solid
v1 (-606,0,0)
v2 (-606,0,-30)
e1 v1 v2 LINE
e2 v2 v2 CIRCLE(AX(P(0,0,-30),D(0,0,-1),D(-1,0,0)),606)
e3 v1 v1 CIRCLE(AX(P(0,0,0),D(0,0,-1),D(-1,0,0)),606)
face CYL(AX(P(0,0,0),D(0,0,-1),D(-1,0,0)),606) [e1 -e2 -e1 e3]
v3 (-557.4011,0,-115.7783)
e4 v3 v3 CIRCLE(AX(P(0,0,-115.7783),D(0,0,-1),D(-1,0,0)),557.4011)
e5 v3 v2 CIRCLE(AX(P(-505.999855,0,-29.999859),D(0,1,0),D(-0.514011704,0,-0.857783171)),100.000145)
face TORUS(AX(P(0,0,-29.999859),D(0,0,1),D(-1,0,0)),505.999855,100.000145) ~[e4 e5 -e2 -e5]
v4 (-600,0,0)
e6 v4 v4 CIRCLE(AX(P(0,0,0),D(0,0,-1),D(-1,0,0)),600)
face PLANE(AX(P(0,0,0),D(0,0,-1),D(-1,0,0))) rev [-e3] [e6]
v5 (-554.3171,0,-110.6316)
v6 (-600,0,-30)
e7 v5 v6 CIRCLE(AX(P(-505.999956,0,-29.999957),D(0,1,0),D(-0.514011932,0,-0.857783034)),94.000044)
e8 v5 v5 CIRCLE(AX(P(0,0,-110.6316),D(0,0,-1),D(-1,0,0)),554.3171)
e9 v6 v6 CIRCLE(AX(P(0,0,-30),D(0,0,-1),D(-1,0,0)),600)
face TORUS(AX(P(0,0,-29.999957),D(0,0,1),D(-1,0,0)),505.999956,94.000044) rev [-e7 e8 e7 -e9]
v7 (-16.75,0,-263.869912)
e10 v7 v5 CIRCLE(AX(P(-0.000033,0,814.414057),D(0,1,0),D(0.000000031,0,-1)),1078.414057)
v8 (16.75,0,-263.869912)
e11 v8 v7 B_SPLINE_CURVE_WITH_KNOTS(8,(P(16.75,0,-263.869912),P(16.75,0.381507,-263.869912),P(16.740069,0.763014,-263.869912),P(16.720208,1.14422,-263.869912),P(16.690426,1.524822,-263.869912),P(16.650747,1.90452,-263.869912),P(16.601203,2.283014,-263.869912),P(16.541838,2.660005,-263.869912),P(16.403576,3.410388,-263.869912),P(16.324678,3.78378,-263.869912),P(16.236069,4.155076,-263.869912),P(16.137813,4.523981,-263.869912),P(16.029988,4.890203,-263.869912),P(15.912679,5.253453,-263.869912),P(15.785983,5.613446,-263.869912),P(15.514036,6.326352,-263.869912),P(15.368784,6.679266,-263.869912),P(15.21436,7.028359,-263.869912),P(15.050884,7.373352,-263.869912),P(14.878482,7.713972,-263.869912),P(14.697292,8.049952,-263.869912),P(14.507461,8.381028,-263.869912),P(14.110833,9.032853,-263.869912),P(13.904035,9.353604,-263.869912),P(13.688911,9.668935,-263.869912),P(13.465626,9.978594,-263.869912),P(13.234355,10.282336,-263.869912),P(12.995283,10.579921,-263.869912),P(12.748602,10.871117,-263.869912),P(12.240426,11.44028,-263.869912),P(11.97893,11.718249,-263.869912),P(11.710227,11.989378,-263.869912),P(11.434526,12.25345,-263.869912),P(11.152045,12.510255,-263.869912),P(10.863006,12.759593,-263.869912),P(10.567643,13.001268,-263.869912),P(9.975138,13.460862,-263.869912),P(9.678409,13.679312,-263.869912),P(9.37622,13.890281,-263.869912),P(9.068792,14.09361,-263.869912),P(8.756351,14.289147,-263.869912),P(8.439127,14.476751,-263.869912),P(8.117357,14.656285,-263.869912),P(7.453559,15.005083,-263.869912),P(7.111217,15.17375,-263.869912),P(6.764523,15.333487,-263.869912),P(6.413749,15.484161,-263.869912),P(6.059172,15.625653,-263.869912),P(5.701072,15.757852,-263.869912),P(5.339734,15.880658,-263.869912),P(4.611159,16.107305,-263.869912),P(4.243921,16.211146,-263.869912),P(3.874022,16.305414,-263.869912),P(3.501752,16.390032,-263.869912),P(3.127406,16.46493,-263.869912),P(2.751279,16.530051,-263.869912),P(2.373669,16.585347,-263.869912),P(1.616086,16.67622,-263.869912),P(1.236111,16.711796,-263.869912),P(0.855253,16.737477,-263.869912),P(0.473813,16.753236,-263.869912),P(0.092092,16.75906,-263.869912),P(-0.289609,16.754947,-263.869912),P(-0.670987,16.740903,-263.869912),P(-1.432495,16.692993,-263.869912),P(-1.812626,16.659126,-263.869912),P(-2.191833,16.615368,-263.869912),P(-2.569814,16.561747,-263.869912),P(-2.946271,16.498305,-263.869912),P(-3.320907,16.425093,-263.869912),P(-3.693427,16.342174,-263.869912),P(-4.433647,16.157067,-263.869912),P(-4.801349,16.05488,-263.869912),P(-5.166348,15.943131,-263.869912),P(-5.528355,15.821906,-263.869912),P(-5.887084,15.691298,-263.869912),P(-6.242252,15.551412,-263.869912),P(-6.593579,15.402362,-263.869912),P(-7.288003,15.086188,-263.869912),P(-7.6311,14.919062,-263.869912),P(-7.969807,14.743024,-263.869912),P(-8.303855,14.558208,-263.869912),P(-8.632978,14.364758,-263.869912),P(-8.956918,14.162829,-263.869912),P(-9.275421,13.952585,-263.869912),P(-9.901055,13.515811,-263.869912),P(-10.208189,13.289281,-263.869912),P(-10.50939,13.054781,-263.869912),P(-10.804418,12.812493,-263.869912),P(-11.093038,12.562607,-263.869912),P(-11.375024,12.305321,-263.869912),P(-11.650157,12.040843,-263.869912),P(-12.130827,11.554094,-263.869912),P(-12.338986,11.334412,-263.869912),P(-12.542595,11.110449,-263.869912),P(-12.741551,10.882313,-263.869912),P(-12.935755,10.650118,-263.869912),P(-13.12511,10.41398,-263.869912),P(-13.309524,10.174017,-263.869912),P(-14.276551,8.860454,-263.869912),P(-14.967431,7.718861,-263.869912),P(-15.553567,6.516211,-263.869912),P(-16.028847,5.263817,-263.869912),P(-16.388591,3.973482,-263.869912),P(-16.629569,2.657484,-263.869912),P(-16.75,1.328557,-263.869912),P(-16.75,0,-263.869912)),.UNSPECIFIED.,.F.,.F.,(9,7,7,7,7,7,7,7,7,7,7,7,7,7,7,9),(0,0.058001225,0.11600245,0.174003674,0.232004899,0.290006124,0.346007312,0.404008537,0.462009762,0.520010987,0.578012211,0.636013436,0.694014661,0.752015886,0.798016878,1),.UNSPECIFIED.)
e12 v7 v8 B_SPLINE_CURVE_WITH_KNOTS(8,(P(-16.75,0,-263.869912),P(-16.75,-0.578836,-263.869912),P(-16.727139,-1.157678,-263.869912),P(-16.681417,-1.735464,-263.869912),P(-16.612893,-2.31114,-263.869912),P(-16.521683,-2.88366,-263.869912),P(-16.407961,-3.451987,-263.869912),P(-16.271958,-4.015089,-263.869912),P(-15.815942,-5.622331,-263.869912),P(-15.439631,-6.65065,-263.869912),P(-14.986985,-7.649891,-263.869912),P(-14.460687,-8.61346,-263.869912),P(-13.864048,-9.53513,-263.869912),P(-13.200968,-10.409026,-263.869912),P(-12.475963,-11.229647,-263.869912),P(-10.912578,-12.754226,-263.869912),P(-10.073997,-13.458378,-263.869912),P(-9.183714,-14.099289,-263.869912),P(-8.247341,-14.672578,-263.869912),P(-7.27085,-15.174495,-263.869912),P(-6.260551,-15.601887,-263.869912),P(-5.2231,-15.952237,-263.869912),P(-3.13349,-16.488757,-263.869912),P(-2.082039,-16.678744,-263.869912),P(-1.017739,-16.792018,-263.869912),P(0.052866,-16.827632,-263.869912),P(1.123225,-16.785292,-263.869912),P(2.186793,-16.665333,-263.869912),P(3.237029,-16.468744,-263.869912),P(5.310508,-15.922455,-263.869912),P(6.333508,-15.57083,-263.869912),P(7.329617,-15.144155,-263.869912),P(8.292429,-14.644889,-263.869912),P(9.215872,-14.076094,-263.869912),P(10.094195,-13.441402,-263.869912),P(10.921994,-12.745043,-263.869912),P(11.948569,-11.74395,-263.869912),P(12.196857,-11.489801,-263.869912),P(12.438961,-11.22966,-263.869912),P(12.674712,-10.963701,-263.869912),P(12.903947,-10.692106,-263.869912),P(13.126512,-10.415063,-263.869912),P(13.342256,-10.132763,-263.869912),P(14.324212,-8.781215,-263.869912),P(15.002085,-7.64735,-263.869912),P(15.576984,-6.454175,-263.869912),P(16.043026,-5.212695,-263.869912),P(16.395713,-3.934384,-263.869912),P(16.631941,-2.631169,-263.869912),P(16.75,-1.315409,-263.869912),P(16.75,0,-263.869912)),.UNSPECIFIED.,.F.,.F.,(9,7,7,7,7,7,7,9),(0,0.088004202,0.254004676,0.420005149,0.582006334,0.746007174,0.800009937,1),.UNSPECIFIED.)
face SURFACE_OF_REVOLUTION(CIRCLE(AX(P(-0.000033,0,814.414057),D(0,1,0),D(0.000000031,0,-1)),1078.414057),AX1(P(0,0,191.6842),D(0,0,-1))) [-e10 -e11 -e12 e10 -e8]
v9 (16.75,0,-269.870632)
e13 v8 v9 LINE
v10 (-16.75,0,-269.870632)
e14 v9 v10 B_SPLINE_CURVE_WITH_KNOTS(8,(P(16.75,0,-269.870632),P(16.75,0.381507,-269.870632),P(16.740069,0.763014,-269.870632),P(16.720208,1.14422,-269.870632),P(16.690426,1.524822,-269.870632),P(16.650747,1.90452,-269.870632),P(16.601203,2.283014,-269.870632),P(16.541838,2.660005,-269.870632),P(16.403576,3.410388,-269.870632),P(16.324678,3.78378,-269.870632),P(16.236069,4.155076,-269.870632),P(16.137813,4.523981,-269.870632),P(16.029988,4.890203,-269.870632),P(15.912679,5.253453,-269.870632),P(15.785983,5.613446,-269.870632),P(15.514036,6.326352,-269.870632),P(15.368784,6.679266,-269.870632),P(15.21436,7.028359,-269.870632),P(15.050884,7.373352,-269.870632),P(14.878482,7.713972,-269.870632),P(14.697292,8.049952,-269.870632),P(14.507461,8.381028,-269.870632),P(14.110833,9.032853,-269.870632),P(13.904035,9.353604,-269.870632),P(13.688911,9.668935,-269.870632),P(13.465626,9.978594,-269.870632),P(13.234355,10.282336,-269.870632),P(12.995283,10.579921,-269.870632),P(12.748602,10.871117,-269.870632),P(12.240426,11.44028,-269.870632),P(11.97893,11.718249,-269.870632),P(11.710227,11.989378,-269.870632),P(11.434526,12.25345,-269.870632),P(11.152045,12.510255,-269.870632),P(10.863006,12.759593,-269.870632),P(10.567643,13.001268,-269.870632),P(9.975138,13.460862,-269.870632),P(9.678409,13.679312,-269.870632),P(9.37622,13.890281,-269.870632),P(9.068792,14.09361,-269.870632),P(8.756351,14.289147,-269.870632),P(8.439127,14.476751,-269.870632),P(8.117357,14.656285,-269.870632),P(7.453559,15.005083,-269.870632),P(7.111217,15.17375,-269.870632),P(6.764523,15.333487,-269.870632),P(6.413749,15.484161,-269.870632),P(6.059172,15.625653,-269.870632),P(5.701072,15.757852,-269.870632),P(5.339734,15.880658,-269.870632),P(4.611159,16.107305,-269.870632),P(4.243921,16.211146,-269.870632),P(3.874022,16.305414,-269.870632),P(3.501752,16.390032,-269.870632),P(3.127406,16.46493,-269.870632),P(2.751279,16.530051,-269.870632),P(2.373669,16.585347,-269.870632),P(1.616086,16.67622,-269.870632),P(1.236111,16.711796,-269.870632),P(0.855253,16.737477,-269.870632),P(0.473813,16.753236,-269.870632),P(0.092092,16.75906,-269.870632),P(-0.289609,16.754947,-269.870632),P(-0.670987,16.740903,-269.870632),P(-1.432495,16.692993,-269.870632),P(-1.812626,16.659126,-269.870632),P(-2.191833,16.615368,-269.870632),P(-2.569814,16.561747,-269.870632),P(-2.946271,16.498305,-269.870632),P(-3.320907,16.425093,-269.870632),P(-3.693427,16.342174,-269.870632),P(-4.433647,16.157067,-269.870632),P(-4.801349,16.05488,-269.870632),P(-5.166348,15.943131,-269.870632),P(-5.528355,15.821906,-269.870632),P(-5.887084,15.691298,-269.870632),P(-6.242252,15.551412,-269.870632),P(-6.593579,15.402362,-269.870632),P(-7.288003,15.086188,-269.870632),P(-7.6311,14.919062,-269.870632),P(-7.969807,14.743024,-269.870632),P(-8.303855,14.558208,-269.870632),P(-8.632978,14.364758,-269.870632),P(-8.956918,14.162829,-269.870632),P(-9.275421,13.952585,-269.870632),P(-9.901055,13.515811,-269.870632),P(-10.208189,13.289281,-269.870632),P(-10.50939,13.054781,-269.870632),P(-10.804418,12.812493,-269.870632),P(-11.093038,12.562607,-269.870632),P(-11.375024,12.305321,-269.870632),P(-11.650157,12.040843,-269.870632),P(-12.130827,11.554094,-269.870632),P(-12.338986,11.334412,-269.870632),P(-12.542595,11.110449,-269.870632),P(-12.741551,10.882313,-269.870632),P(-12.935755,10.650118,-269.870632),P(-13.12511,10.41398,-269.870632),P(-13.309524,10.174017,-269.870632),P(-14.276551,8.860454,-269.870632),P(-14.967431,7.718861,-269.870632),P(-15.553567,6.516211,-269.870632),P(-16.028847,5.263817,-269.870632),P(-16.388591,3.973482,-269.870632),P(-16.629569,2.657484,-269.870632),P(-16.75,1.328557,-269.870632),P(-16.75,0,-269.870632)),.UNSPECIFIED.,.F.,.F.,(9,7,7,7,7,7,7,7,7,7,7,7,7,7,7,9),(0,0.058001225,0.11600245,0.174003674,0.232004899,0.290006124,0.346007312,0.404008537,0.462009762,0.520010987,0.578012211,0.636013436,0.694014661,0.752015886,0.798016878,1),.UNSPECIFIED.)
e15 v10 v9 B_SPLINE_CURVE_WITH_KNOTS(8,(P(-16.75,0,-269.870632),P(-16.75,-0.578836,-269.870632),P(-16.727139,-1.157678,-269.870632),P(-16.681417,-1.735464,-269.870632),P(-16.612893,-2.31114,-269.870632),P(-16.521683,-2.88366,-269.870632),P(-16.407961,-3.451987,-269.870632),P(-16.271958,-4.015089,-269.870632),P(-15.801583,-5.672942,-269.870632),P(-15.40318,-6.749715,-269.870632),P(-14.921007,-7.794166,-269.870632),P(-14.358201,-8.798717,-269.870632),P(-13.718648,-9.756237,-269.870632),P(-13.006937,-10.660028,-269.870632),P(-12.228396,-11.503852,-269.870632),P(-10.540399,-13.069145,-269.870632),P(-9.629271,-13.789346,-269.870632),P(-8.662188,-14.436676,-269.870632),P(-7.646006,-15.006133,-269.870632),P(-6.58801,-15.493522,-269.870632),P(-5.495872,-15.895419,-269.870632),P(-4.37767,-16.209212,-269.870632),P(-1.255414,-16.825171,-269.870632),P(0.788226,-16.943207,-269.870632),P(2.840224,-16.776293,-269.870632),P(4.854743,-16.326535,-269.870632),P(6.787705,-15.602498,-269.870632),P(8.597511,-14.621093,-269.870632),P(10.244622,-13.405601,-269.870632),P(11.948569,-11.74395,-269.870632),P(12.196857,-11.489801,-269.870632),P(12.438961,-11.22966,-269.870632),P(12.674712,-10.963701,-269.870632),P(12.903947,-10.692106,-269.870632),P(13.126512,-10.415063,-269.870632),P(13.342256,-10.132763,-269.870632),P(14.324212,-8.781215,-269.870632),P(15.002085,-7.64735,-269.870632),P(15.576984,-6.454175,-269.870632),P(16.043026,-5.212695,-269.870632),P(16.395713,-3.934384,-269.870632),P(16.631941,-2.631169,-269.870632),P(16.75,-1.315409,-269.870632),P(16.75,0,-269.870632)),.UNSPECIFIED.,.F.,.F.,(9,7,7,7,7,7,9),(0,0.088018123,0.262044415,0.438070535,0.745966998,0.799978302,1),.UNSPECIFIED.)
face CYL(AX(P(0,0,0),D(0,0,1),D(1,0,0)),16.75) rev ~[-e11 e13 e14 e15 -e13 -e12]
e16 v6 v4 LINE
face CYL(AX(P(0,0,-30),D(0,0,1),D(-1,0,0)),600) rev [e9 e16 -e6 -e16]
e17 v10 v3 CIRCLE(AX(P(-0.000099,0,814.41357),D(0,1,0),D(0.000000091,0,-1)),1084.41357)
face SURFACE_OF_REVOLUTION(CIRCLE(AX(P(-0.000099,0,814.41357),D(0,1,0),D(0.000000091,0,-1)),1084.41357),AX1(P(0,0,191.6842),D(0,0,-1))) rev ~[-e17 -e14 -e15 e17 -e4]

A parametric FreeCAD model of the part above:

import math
import FreeCAD as App
import Part
import Sketcher
from FreeCAD import Vector
Q = App.Units.Quantity

doc = App.newDocument("Part")
params = doc.addObject("Spreadsheet::Sheet", "Params")
for row, (alias, value) in enumerate([
    ("sketch1_radius", "100 mm"),
    ("sketch1_width", "6 mm"),
    ("sketch1_height", "30 mm"),
    ("revolution_angle", "360 deg"),
    ("sketch2_diameter", "33.5 mm"),
], start=1):
    params.set(f"A{row}", alias)
    params.set(f"B{row}", "=" + value)
    params.setAlias(f"B{row}", alias)

body = doc.addObject("PartDesign::Body", "Body")

# Sketch on XZ plane
sketch1 = body.newObject("Sketcher::SketchObject", "Sketch")
sketch1.AttachmentSupport = (doc.getObject("XZ_Plane"), [""])
sketch1.MapMode = "FlatFace"
sketch1.addGeometry(Part.LineSegment(Vector(-606, -30, 0), Vector(-606, 0, 0)), False)
sketch1.addGeometry(Part.LineSegment(Vector(-606, 0, 0), Vector(-600, 0, 0)), False)
sketch1.addGeometry(Part.LineSegment(Vector(-600, 0, 0), Vector(-600, -30, 0)), False)
sketch1.addGeometry(Part.ArcOfCircle(Part.Circle(Vector(-506, -30, 0), Vector(0, 0, 1), 94), math.radians(180), math.radians(239)), False)
sketch1.addGeometry(Part.ArcOfCircle(Part.Circle(Vector(0, 814, 0), Vector(0, 0, 1), 1078), math.radians(-121), math.radians(-90)), False)
sketch1.addGeometry(Part.LineSegment(Vector(0, -264, 0), Vector(0, -270, 0)), False)
sketch1.addGeometry(Part.ArcOfCircle(Part.Circle(Vector(0, 814, 0), Vector(0, 0, 1), 1084), math.radians(-121), math.radians(-90)), False)
sketch1.addGeometry(Part.ArcOfCircle(Part.Circle(Vector(-506, -30, 0), Vector(0, 0, 1), 100), math.radians(180), math.radians(239)), False)
sketch1.addConstraint(Sketcher.Constraint("Coincident", 0, 2, 1, 1))
sketch1.addConstraint(Sketcher.Constraint("Coincident", 1, 2, 2, 1))
sketch1.addConstraint(Sketcher.Constraint("Tangent", 2, 2, 3, 1))
sketch1.addConstraint(Sketcher.Constraint("Tangent", 3, 2, 4, 1))
sketch1.addConstraint(Sketcher.Constraint("Coincident", 4, 2, 5, 1))
sketch1.addConstraint(Sketcher.Constraint("Coincident", 5, 2, 6, 2))
sketch1.addConstraint(Sketcher.Constraint("Tangent", 6, 1, 7, 2))
sketch1.addConstraint(Sketcher.Constraint("Tangent", 7, 1, 0, 1))
sketch1.addConstraint(Sketcher.Constraint("Vertical", 0))
sketch1.addConstraint(Sketcher.Constraint("Horizontal", 1))
sketch1.addConstraint(Sketcher.Constraint("Vertical", 2))
sketch1.addConstraint(Sketcher.Constraint("Vertical", 5))
sketch1.addConstraint(Sketcher.Constraint("Coincident", 6, 3, 4, 3))
sketch1.addConstraint(Sketcher.Constraint("Coincident", 7, 3, 3, 3))
sketch1.addConstraint(Sketcher.Constraint("PointOnObject", 4, 3, -2))
sketch1.addConstraint(Sketcher.Constraint("PointOnObject", 0, 2, -1))
sketch1.addConstraint(Sketcher.Constraint("PointOnObject", 5, 2, -2))
sketch1.addConstraint(Sketcher.Constraint("Radius", 7, Q("100 mm")))
sketch1.addConstraint(Sketcher.Constraint("DistanceX", 1, 1, 1, 2, Q("6 mm")))
sketch1.addConstraint(Sketcher.Constraint("DistanceY", 0, 1, 0, 2, Q("30 mm")))
sketch1.addConstraint(Sketcher.Constraint("DistanceY", 5, 2, -1, 1, Q("270 mm")))
sketch1.addConstraint(Sketcher.Constraint("Radius", 6, Q("1084.4143 mm")))
sketch1.setExpression("Constraints[17]", "Params.sketch1_radius")
sketch1.setExpression("Constraints[18]", "Params.sketch1_width")
sketch1.setExpression("Constraints[19]", "Params.sketch1_height")
revolution = body.newObject("PartDesign::Revolution", "Revolution")
revolution.Profile = sketch1
revolution.ReferenceAxis = (sketch1, ["V_Axis"])
revolution.setExpression("Angle", "Params.revolution_angle")

# Sketch on XY plane
sketch2 = body.newObject("Sketcher::SketchObject", "Sketch001")
sketch2.AttachmentSupport = (doc.getObject("XY_Plane"), [""])
sketch2.MapMode = "FlatFace"
sketch2.addGeometry(Part.Circle(Vector(0, 0, 0), Vector(0, 0, 1), 17), False)
sketch2.addConstraint(Sketcher.Constraint("Coincident", 0, 3, -1, 1))
sketch2.addConstraint(Sketcher.Constraint("Diameter", 0, Q("33.5 mm")))
sketch2.setExpression("Constraints[1]", "Params.sketch2_diameter")
pocket1 = body.newObject("PartDesign::Pocket", "Pocket")
pocket1.Profile = sketch2
pocket1.Type = "ThroughAll"

doc.recompute()
